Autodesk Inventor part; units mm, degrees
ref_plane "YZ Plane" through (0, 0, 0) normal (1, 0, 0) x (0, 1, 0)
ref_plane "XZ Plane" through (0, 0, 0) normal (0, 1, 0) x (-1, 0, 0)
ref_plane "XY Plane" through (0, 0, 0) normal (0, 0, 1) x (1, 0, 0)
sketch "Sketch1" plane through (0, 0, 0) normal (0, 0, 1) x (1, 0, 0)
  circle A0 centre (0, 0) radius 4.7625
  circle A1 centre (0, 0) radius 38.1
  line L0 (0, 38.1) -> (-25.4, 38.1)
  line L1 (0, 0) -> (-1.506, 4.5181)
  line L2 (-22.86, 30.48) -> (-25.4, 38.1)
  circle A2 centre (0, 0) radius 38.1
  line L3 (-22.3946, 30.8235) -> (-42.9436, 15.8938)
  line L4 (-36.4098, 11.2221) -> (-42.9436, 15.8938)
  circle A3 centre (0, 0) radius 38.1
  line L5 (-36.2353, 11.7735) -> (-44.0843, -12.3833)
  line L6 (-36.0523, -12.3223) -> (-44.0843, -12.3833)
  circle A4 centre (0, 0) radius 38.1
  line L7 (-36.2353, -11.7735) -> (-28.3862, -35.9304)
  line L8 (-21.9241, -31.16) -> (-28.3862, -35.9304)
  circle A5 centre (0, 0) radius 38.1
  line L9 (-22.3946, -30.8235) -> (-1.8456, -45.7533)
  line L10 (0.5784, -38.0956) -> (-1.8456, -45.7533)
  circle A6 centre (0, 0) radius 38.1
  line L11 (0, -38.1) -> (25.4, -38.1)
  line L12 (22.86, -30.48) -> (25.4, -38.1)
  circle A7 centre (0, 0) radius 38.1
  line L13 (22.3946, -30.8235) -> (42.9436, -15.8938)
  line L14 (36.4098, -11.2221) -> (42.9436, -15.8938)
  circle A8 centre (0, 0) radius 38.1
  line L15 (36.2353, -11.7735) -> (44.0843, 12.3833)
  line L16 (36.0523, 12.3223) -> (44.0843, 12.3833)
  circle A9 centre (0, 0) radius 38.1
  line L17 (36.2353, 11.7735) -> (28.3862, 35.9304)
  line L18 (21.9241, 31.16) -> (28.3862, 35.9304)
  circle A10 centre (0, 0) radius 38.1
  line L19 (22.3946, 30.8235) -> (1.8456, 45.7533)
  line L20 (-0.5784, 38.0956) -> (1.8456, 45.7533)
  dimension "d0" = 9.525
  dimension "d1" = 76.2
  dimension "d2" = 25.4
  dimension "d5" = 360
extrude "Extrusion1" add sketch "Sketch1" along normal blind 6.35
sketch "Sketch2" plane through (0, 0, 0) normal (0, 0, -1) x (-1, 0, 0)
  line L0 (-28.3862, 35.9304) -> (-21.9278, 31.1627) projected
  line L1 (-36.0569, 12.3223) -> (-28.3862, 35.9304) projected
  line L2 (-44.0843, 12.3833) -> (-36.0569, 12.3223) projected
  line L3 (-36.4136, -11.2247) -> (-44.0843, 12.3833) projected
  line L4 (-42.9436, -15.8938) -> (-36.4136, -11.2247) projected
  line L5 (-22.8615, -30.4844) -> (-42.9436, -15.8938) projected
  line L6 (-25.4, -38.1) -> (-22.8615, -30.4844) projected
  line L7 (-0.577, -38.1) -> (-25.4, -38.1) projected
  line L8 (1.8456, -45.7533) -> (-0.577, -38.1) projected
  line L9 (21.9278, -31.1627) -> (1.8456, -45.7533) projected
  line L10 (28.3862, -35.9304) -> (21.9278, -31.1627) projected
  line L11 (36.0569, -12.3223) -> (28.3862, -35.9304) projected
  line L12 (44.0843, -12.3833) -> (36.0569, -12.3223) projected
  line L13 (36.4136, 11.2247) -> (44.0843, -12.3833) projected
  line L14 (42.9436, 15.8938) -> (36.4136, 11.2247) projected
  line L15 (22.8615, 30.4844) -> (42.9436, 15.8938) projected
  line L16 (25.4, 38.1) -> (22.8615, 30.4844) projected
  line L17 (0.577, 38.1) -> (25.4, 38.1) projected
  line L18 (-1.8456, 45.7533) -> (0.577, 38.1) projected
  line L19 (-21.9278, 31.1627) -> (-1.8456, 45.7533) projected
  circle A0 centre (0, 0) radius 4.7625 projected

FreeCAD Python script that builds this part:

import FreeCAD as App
import Part
import Sketcher

V = App.Vector
Q = App.Units.Quantity


def add_polygon(sketch, points):
    """Adds a closed chain of lines whose ends are joined by coincident constraints."""
    first, n = sketch.GeometryCount, len(points)
    for a, b in zip(points, points[1:] + points[:1]):
        sketch.addGeometry(Part.LineSegment(App.Vector(*a, 0), App.Vector(*b, 0)), False)
    for i in range(n):
        sketch.addConstraint(Sketcher.Constraint("Coincident", first + i, 2, first + (i + 1) % n, 1))

doc = App.newDocument("Part")
body = doc.addObject("PartDesign::Body", "Body")

# Sketch on XY plane
sketch1 = body.newObject("Sketcher::SketchObject", "Sketch")
sketch1.AttachmentSupport = (doc.getObject("XY_Plane"), [""])
sketch1.MapMode = "FlatFace"
add_polygon(sketch1, [(44.0843, 12.3833), (36.056971, 12.322335), (28.3862, 35.9304), (21.927746, 31.162691), (1.8456, 45.7533), (-0.577007, 38.1), (-25.4, 38.1), (-22.86144, 30.484321), (-42.9436, 15.8938), (-36.413582, 11.224804), (-44.0843, -12.3833), (-36.056971, -12.322335), (-28.3862, -35.9304), (-21.927746, -31.162691), (-1.8456, -45.7533), (0.577007, -38.1), (25.4, -38.1), (22.86144, -30.484321), (42.9436, -15.8938), (36.413582, -11.224804)])  # lines 0-19
sketch1.addGeometry(Part.Circle(V(0, 0, 0), V(0, 0, 1), 4.7625), False)  # 20
sketch1.addConstraint([
    Sketcher.Constraint("Horizontal", 5),
    Sketcher.Constraint("Horizontal", 15),
    Sketcher.Constraint("Coincident", 20, 3, -1, 1),
    Sketcher.Constraint("Symmetric", 0, 2, 10, 2, -1, 1),
    Sketcher.Constraint("Symmetric", 1, 2, 11, 2, -1, 1),
    Sketcher.Constraint("Symmetric", 2, 2, 12, 2, -1, 1),
    Sketcher.Constraint("Symmetric", 3, 2, 13, 2, -1, 1),
    Sketcher.Constraint("Symmetric", 4, 2, 14, 2, -1, 1),
    Sketcher.Constraint("Symmetric", 6, 2, 16, 2, -1, 1),
    Sketcher.Constraint("Symmetric", 7, 2, 17, 2, -1, 1),
    Sketcher.Constraint("Symmetric", 8, 2, 18, 2, -1, 1),
    Sketcher.Constraint("Symmetric", 9, 2, 19, 2, -1, 1),
    Sketcher.Constraint("Parallel", 6, 16),
    Sketcher.Constraint("Equal", 0, 2),
    Sketcher.Constraint("Equal", 1, 3),
    Sketcher.Constraint("Equal", 2, 4),
    Sketcher.Constraint("Equal", 4, 6),
    Sketcher.Constraint("Equal", 3, 7),
    Sketcher.Constraint("Equal", 6, 8),
    Sketcher.Constraint("Equal", 7, 9),
    Sketcher.Constraint("Diameter", 20, Q("0.375 in")),
    Sketcher.Constraint("DistanceX", 5, 2, -1, 1, Q("1 in")),
    Sketcher.Constraint("Angle", 1, Q("108 deg")),
    Sketcher.Constraint("Angle", 3, Q("143.9999 deg")),
    Sketcher.Constraint("Angle", 7, Q("-144 deg")),
    Sketcher.Constraint("Angle", 9, Q("-108 deg")),
    Sketcher.Constraint("DistanceY", -1, 1, 4, 2, Q("1.5 in")),
    Sketcher.Constraint("DistanceX", 1, 2, 0, 2, Q("0.302 in")),
    Sketcher.Constraint("DistanceX", 5, 2, 5, 1, Q("24.823 mm")),
    Sketcher.Constraint("DistanceX", -1, 1, 2, 2, Q("0.8633 in")),
    Sketcher.Constraint("DistanceY", -1, 1, 3, 2, Q("1.8013 in")),
    Sketcher.Constraint("DistanceX", 7, 2, -1, 1, Q("1.6907 in")),
    Sketcher.Constraint("DistanceX", 8, 2, -1, 1, Q("1.4336 in")),
])
pad1 = body.newObject("PartDesign::Pad", "Pad")
pad1.Profile = sketch1
pad1.Length = Q("0.25 in")

doc.recompute()
